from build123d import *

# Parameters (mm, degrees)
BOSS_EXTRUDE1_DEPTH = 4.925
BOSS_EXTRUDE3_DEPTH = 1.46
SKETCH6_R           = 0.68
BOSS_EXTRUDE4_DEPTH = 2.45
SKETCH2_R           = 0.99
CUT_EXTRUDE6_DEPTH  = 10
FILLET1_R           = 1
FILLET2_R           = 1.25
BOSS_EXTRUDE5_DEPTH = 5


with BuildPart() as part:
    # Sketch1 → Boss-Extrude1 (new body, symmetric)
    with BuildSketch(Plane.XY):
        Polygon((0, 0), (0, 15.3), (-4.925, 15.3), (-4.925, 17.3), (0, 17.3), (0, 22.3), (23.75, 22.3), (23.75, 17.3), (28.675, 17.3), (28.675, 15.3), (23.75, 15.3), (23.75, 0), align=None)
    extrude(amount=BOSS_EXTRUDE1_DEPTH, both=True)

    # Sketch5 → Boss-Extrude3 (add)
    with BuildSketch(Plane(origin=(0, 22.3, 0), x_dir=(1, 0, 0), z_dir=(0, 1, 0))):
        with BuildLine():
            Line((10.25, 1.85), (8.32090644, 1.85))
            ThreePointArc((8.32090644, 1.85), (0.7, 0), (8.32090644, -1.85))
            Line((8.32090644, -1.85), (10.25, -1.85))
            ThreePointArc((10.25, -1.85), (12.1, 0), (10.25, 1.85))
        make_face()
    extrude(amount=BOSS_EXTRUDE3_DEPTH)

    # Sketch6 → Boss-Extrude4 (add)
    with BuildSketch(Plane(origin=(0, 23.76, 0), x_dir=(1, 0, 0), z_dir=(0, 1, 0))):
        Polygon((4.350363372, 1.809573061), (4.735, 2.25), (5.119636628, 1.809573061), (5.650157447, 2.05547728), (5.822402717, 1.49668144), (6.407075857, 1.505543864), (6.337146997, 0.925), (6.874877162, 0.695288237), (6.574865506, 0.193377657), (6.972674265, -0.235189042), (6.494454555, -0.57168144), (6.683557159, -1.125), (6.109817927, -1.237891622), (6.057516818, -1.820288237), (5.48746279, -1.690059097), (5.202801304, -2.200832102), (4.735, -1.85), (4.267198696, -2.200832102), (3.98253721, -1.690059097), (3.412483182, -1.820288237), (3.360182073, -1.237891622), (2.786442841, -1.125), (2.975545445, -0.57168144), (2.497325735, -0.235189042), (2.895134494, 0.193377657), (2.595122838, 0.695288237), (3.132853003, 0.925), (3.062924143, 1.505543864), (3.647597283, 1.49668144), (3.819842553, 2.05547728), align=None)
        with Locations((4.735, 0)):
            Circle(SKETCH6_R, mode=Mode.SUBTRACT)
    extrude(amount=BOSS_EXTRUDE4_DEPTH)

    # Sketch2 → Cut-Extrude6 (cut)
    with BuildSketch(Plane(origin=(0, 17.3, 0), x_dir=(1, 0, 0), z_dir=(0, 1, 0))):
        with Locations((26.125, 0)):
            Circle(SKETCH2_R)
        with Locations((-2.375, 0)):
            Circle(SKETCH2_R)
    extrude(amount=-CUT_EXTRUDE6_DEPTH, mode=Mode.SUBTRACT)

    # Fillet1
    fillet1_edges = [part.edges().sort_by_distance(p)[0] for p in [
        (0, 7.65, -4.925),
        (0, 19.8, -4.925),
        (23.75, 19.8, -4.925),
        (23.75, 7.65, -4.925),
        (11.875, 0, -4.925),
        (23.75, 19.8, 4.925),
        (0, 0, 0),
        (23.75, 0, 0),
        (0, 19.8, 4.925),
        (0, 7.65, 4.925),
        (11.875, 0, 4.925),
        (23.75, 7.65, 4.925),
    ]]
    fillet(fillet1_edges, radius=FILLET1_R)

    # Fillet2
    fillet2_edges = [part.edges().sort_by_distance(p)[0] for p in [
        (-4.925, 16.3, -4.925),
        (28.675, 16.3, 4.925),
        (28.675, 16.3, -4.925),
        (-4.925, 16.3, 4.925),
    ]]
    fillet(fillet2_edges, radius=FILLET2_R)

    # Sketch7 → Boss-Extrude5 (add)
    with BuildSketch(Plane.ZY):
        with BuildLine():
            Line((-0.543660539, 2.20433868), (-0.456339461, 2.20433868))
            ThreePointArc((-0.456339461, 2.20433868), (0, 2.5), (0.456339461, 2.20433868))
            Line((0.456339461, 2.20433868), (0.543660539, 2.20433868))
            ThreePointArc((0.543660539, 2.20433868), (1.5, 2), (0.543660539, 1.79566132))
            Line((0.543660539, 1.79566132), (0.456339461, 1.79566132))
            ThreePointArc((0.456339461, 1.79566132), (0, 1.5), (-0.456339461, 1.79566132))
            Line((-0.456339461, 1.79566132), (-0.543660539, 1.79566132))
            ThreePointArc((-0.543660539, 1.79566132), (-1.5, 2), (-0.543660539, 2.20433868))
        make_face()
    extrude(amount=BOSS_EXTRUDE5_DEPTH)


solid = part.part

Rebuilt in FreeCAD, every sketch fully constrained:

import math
import FreeCAD as App
import Part
import Sketcher
from FreeCAD import Vector
Q = App.Units.Quantity


def edges_at(feature, points):
    """Names of the edges that pass closest to the given points."""
    edges = feature.Shape.Edges
    near = lambda p: min(range(len(edges)), key=lambda i: edges[i].distToShape(Part.Vertex(*p))[0])
    return sorted({f"Edge{near(p) + 1}" for p in points})


def add_polygon(sketch, points):
    """Adds a closed chain of lines whose ends are joined by coincident constraints."""
    first, n = sketch.GeometryCount, len(points)
    for a, b in zip(points, points[1:] + points[:1]):
        sketch.addGeometry(Part.LineSegment(App.Vector(*a, 0), App.Vector(*b, 0)), False)
    for i in range(n):
        sketch.addConstraint(Sketcher.Constraint("Coincident", first + i, 2, first + (i + 1) % n, 1))

doc = App.newDocument("Part")
body = doc.addObject("PartDesign::Body", "Body")

# Sketch on XY plane
sketch1 = body.newObject("Sketcher::SketchObject", "Sketch")
sketch1.AttachmentSupport = (doc.getObject("XY_Plane"), [""])
sketch1.MapMode = "FlatFace"
add_polygon(sketch1, [(0, 15.3), (0, 0), (23.8, 0), (23.8, 15.3), (28.7, 15.3), (28.7, 17.3), (23.8, 17.3), (23.8, 22.3), (0, 22.3), (0, 17.3), (-4.9, 17.3), (-4.9, 15.3)])  # lines 0-11
sketch1.addConstraint(Sketcher.Constraint("Vertical", 0))
sketch1.addConstraint(Sketcher.Constraint("Horizontal", 1))
sketch1.addConstraint(Sketcher.Constraint("Vertical", 2))
sketch1.addConstraint(Sketcher.Constraint("Horizontal", 3))
sketch1.addConstraint(Sketcher.Constraint("Vertical", 4))
sketch1.addConstraint(Sketcher.Constraint("Horizontal", 5))
sketch1.addConstraint(Sketcher.Constraint("Vertical", 6))
sketch1.addConstraint(Sketcher.Constraint("Horizontal", 7))
sketch1.addConstraint(Sketcher.Constraint("Vertical", 8))
sketch1.addConstraint(Sketcher.Constraint("Horizontal", 9))
sketch1.addConstraint(Sketcher.Constraint("Vertical", 10))
sketch1.addConstraint(Sketcher.Constraint("Horizontal", 11))
sketch1.addConstraint(Sketcher.Constraint("Coincident", 0, 2, -1, 1))
sketch1.addConstraint(Sketcher.Constraint("PointOnObject", 7, 2, -2))
sketch1.addConstraint(Sketcher.Constraint("Horizontal", 5, 2, 8, 2))
sketch1.addConstraint(Sketcher.Constraint("Horizontal", 3, 2, 10, 2))
sketch1.addConstraint(Sketcher.Constraint("Vertical", 2, 2, 5, 2))
sketch1.addConstraint(Sketcher.Constraint("Equal", 5, 9))
sketch1.addConstraint(Sketcher.Constraint("DistanceY", 4, 1, 4, 2, Q("2 mm")))
sketch1.addConstraint(Sketcher.Constraint("DistanceY", 6, 1, 6, 2, Q("5 mm")))
sketch1.addConstraint(Sketcher.Constraint("DistanceY", 0, 2, 0, 1, Q("15.3 mm")))
sketch1.addConstraint(Sketcher.Constraint("DistanceX", 1, 1, 1, 2, Q("23.75 mm")))
sketch1.addConstraint(Sketcher.Constraint("DistanceX", 3, 1, 3, 2, Q("4.925 mm")))
pad1 = body.newObject("PartDesign::Pad", "Pad")
pad1.Profile = sketch1
pad1.Length = 9.85
pad1.Midplane = True

# Sketch on XZ plane
sketch2 = body.newObject("Sketcher::SketchObject", "Sketch001")
sketch2.AttachmentSupport = (doc.getObject("XZ_Plane"), [""])
sketch2.MapMode = "FlatFace"
sketch2.AttachmentOffset = App.Placement(Vector(0, 0, -22.3), App.Rotation())
sketch2.addGeometry(Part.LineSegment(Vector(10.2, -1.9, 0), Vector(8.3, -1.9, 0)), False)
sketch2.addGeometry(Part.ArcOfCircle(Part.Circle(Vector(4.7, 0, 0), Vector(0, 0, 1), 4), math.radians(27), math.radians(333)), False)
sketch2.addGeometry(Part.LineSegment(Vector(8.3, 1.9, 0), Vector(10.2, 1.9, 0)), False)
sketch2.addGeometry(Part.ArcOfCircle(Part.Circle(Vector(10.2, 0, 0), Vector(0, 0, 1), 1.9), math.radians(-90), math.radians(90)), False)
sketch2.addConstraint(Sketcher.Constraint("Coincident", 0, 2, 1, 2))
sketch2.addConstraint(Sketcher.Constraint("Coincident", 1, 1, 2, 1))
sketch2.addConstraint(Sketcher.Constraint("Tangent", 2, 2, 3, 2))
sketch2.addConstraint(Sketcher.Constraint("Tangent", 3, 1, 0, 1))
sketch2.addConstraint(Sketcher.Constraint("Horizontal", 0))
sketch2.addConstraint(Sketcher.Constraint("Horizontal", 2))
sketch2.addConstraint(Sketcher.Constraint("Symmetric", 0, 2, 1, 1, -1))
sketch2.addConstraint(Sketcher.Constraint("Radius", 3, Q("1.85 mm")))
sketch2.addConstraint(Sketcher.Constraint("Radius", 1, Q("4.035 mm")))
sketch2.addConstraint(Sketcher.Constraint("DistanceX", -1, 1, 3, 3, Q("10.25 mm")))
sketch2.addConstraint(Sketcher.Constraint("DistanceX", -1, 1, 1, 3, Q("4.735 mm")))
pad2 = body.newObject("PartDesign::Pad", "Pad001")
pad2.Profile = sketch2
pad2.Length = 1.46
pad2.Reversed = True

# Sketch on XZ plane
sketch3 = body.newObject("Sketcher::SketchObject", "Sketch002")
sketch3.AttachmentSupport = (doc.getObject("XZ_Plane"), [""])
sketch3.MapMode = "FlatFace"
sketch3.AttachmentOffset = App.Placement(Vector(0, 0, -23.76), App.Rotation())
add_polygon(sketch3, [(4.7, -2.2), (4.4, -1.8), (3.8, -2.1), (3.6, -1.5), (3.1, -1.5), (3.1, -0.9), (2.6, -0.7), (2.9, -0.2), (2.5, 0.2), (3, 0.6), (2.8, 1.1), (3.4, 1.2), (3.4, 1.8), (4, 1.7), (4.3, 2.2), (4.7, 1.9), (5.2, 2.2), (5.5, 1.7), (6.1, 1.8), (6.1, 1.2), (6.7, 1.1), (6.5, 0.6), (7, 0.2), (6.6, -0.2), (6.9, -0.7), (6.3, -0.9), (6.4, -1.5), (5.8, -1.5), (5.7, -2.1), (5.1, -1.8)])  # lines 0-29
sketch3.addGeometry(Part.Circle(Vector(4.7, 0, 0), Vector(0, 0, 1), 0.7), False)  # 30
sketch3.addConstraint(Sketcher.Constraint("PointOnObject", 30, 3, -1))
sketch3.addConstraint(Sketcher.Constraint("Horizontal", 13, 2, 15, 2))
sketch3.addConstraint(Sketcher.Constraint("Horizontal", 12, 2, 16, 2))
sketch3.addConstraint(Sketcher.Constraint("Horizontal", 11, 2, 17, 2))
sketch3.addConstraint(Sketcher.Constraint("Horizontal", 10, 2, 18, 2))
sketch3.addConstraint(Sketcher.Constraint("Horizontal", 9, 2, 19, 2))
sketch3.addConstraint(Sketcher.Constraint("Horizontal", 8, 2, 20, 2))
sketch3.addConstraint(Sketcher.Constraint("Horizontal", 7, 2, 21, 2))
sketch3.addConstraint(Sketcher.Constraint("Horizontal", 6, 2, 22, 2))
sketch3.addConstraint(Sketcher.Constraint("Horizontal", 5, 2, 23, 2))
sketch3.addConstraint(Sketcher.Constraint("Horizontal", 4, 2, 24, 2))
sketch3.addConstraint(Sketcher.Constraint("Horizontal", 3, 2, 25, 2))
sketch3.addConstraint(Sketcher.Constraint("Horizontal", 2, 2, 26, 2))
sketch3.addConstraint(Sketcher.Constraint("Horizontal", 1, 2, 27, 2))
sketch3.addConstraint(Sketcher.Constraint("Horizontal", 0, 2, 28, 2))
sketch3.addConstraint(Sketcher.Constraint("Vertical", 30, 3, 14, 2))
sketch3.addConstraint(Sketcher.Constraint("Vertical", 14, 2, 29, 2))
sketch3.addConstraint(Sketcher.Constraint("Equal", 0, 1))
sketch3.addConstraint(Sketcher.Constraint("Equal", 1, 2))
sketch3.addConstraint(Sketcher.Constraint("Equal", 2, 3))
sketch3.addConstraint(Sketcher.Constraint("Equal", 3, 4))
sketch3.addConstraint(Sketcher.Constraint("Equal", 4, 5))
sketch3.addConstraint(Sketcher.Constraint("Equal", 5, 6))
sketch3.addConstraint(Sketcher.Constraint("Equal", 6, 7))
sketch3.addConstraint(Sketcher.Constraint("Equal", 7, 8))
sketch3.addConstraint(Sketcher.Constraint("Equal", 8, 9))
sketch3.addConstraint(Sketcher.Constraint("Equal", 9, 10))
sketch3.addConstraint(Sketcher.Constraint("Equal", 10, 11))
sketch3.addConstraint(Sketcher.Constraint("Equal", 11, 12))
sketch3.addConstraint(Sketcher.Constraint("Equal", 12, 13))
sketch3.addConstraint(Sketcher.Constraint("Equal", 13, 14))
sketch3.addConstraint(Sketcher.Constraint("Equal", 14, 15))
sketch3.addConstraint(Sketcher.Constraint("Equal", 15, 16))
sketch3.addConstraint(Sketcher.Constraint("Equal", 16, 17))
sketch3.addConstraint(Sketcher.Constraint("Equal", 17, 18))
sketch3.addConstraint(Sketcher.Constraint("Equal", 18, 19))
sketch3.addConstraint(Sketcher.Constraint("Equal", 19, 20))
sketch3.addConstraint(Sketcher.Constraint("Equal", 20, 21))
sketch3.addConstraint(Sketcher.Constraint("Equal", 21, 22))
sketch3.addConstraint(Sketcher.Constraint("Equal", 22, 23))
sketch3.addConstraint(Sketcher.Constraint("Equal", 23, 24))
sketch3.addConstraint(Sketcher.Constraint("Equal", 24, 25))
sketch3.addConstraint(Sketcher.Constraint("Equal", 25, 26))
sketch3.addConstraint(Sketcher.Constraint("Equal", 26, 27))
sketch3.addConstraint(Sketcher.Constraint("Equal", 27, 28))
sketch3.addConstraint(Sketcher.Constraint("Diameter", 30, Q("1.36 mm")))
sketch3.addConstraint(Sketcher.Constraint("DistanceY", -1, 1, 14, 2, Q("1.85 mm")))
sketch3.addConstraint(Sketcher.Constraint("DistanceY", 29, 2, -1, 1, Q("2.25 mm")))
sketch3.addConstraint(Sketcher.Constraint("DistanceY", 4, 2, 9, 2, Q("2.05 mm")))
sketch3.addConstraint(Sketcher.Constraint("DistanceX", -1, 1, 30, 3, Q("4.735 mm")))
sketch3.addConstraint(Sketcher.Constraint("DistanceY", 4, 2, -1, 1, Q("0.925 mm")))
sketch3.addConstraint(Sketcher.Constraint("DistanceX", -1, 1, 13, 2, Q("4.267199 mm")))
sketch3.addConstraint(Sketcher.Constraint("DistanceX", 5, 2, 3, 2, Q("0.467801 mm")))
sketch3.addConstraint(Sketcher.Constraint("DistanceX", 7, 2, 3, 2, Q("0.565598 mm")))
sketch3.addConstraint(Sketcher.Constraint("DistanceX", 10, 2, 11, 2, Q("0.052301 mm")))
sketch3.addConstraint(Sketcher.Constraint("DistanceY", 7, 2, 11, 2, Q("1.585099 mm")))
sketch3.addConstraint(Sketcher.Constraint("Distance", 0, Q("0.58474 mm")))
sketch3.addConstraint(Sketcher.Constraint("DistanceY", 2, 2, -1, 1, Q("1.496681 mm")))
sketch3.addConstraint(Sketcher.Constraint("DistanceY", 5, 2, -1, 1, Q("0.695288 mm")))
sketch3.addConstraint(Sketcher.Constraint("DistanceY", -1, 1, 7, 2, Q("0.235189 mm")))
sketch3.addConstraint(Sketcher.Constraint("DistanceY", -1, 1, 8, 2, Q("0.571681 mm")))
sketch3.addConstraint(Sketcher.Constraint("DistanceY", -1, 1, 12, 2, Q("1.690059 mm")))
sketch3.addConstraint(Sketcher.Constraint("DistanceX", 1, 2, 0, 2, Q("0.530521 mm")))
pad3 = body.newObject("PartDesign::Pad", "Pad002")
pad3.Profile = sketch3
pad3.Length = 2.45
pad3.Reversed = True

# Sketch on XZ plane
sketch4 = body.newObject("Sketcher::SketchObject", "Sketch003")
sketch4.AttachmentSupport = (doc.getObject("XZ_Plane"), [""])
sketch4.MapMode = "FlatFace"
sketch4.AttachmentOffset = App.Placement(Vector(0, 0, -17.3), App.Rotation())
sketch4.addGeometry(Part.Circle(Vector(26.1, 0, 0), Vector(0, 0, 1), 1), False)
sketch4.addGeometry(Part.Circle(Vector(-2.4, 0, 0), Vector(0, 0, 1), 1), False)
sketch4.addConstraint(Sketcher.Constraint("Equal", 0, 1))
sketch4.addConstraint(Sketcher.Constraint("PointOnObject", 0, 3, -1))
sketch4.addConstraint(Sketcher.Constraint("PointOnObject", 1, 3, -1))
sketch4.addConstraint(Sketcher.Constraint("Diameter", 0, Q("1.98 mm")))
sketch4.addConstraint(Sketcher.Constraint("DistanceX", 1, 3, 0, 3, Q("28.5 mm")))
sketch4.addConstraint(Sketcher.Constraint("DistanceX", -1, 1, 0, 3, Q("26.125 mm")))
pocket1 = body.newObject("PartDesign::Pocket", "Pocket")
pocket1.Profile = sketch4
pocket1.Length = 10
pocket1.Reversed = True
doc.recompute()

fillet = body.newObject("PartDesign::Fillet", "Fillet")
fillet.Base = (pocket1, edges_at(pocket1, [
    (0, 7.65, -4.925),
    (0, 19.8, -4.925),
    (23.75, 19.8, -4.925),
    (23.75, 7.65, -4.925),
    (11.875, 0, -4.925),
    (23.75, 19.8, 4.925),
    (0, 0, 0),
    (23.75, 0, 0),
    (0, 19.8, 4.925),
    (0, 7.65, 4.925),
    (11.875, 0, 4.925),
    (23.75, 7.65, 4.925),
]))
fillet.Radius = 1
doc.recompute()

fillet2 = body.newObject("PartDesign::Fillet", "Fillet001")
fillet2.Base = (fillet, edges_at(fillet, [
    (-4.925, 16.3, -4.925),
    (28.675, 16.3, 4.925),
    (28.675, 16.3, -4.925),
    (-4.925, 16.3, 4.925),
]))
fillet2.Radius = 1.25

# Sketch on YZ plane
sketch5 = body.newObject("Sketcher::SketchObject", "Sketch004")
sketch5.AttachmentSupport = (doc.getObject("YZ_Plane"), [""])
sketch5.MapMode = "FlatFace"
sketch5.addGeometry(Part.LineSegment(Vector(2.2, -0.46, 0), Vector(2.2, -0.54, 0)), False)
sketch5.addGeometry(Part.ArcOfCircle(Part.Circle(Vector(2, -1, 0), Vector(0, 0, 1), 0.5), math.radians(114), math.radians(426)), False)
sketch5.addGeometry(Part.LineSegment(Vector(1.8, -0.54, 0), Vector(1.8, -0.46, 0)), False)
sketch5.addGeometry(Part.ArcOfCircle(Part.Circle(Vector(2, 0, 0), Vector(0, 0, 1), 0.5), math.radians(114), math.radians(246)), False)
sketch5.addGeometry(Part.LineSegment(Vector(1.8, 0.46, 0), Vector(1.8, 0.54, 0)), False)
sketch5.addGeometry(Part.ArcOfCircle(Part.Circle(Vector(2, 1, 0), Vector(0, 0, 1), 0.5), math.radians(-66), math.radians(246)), False)
sketch5.addGeometry(Part.LineSegment(Vector(2.2, 0.54, 0), Vector(2.2, 0.46, 0)), False)
sketch5.addGeometry(Part.ArcOfCircle(Part.Circle(Vector(2, 0, 0), Vector(0, 0, 1), 0.5), math.radians(-66), math.radians(66)), False)
sketch5.addConstraint(Sketcher.Constraint("Coincident", 0, 2, 1, 2))
sketch5.addConstraint(Sketcher.Constraint("Coincident", 1, 1, 2, 1))
sketch5.addConstraint(Sketcher.Constraint("Coincident", 2, 2, 3, 2))
sketch5.addConstraint(Sketcher.Constraint("Coincident", 3, 1, 4, 1))
sketch5.addConstraint(Sketcher.Constraint("Coincident", 4, 2, 5, 2))
sketch5.addConstraint(Sketcher.Constraint("Coincident", 5, 1, 6, 1))
sketch5.addConstraint(Sketcher.Constraint("Coincident", 6, 2, 7, 2))
sketch5.addConstraint(Sketcher.Constraint("Coincident", 7, 1, 0, 1))
sketch5.addConstraint(Sketcher.Constraint("Vertical", 0))
sketch5.addConstraint(Sketcher.Constraint("Vertical", 2))
sketch5.addConstraint(Sketcher.Constraint("Vertical", 4))
sketch5.addConstraint(Sketcher.Constraint("Vertical", 6))
sketch5.addConstraint(Sketcher.Constraint("Coincident", 7, 3, 3, 3))
sketch5.addConstraint(Sketcher.Constraint("Equal", 1, 3))
sketch5.addConstraint(Sketcher.Constraint("Equal", 3, 5))
sketch5.addConstraint(Sketcher.Constraint("Equal", 5, 7))
sketch5.addConstraint(Sketcher.Constraint("Symmetric", 1, 3, 5, 3, -1))
sketch5.addConstraint(Sketcher.Constraint("Symmetric", 2, 2, 3, 1, -1))
sketch5.addConstraint(Sketcher.Constraint("Horizontal", 0, 2, 1, 1))
sketch5.addConstraint(Sketcher.Constraint("Horizontal", 4, 2, 5, 1))
sketch5.addConstraint(Sketcher.Constraint("Horizontal", 3, 1, 6, 2))
sketch5.addConstraint(Sketcher.Constraint("Radius", 1, Q("0.5 mm")))
sketch5.addConstraint(Sketcher.Constraint("DistanceX", -1, 1, 1, 3, Q("2 mm")))
sketch5.addConstraint(Sketcher.Constraint("DistanceY", 1, 3, -1, 1, Q("1 mm")))
sketch5.addConstraint(Sketcher.Constraint("DistanceY", 0, 2, 0, 1, Q("0.087321 mm")))
pad4 = body.newObject("PartDesign::Pad", "Pad003")
pad4.Profile = sketch5
pad4.Length = 5
pad4.Reversed = True

doc.recompute()
